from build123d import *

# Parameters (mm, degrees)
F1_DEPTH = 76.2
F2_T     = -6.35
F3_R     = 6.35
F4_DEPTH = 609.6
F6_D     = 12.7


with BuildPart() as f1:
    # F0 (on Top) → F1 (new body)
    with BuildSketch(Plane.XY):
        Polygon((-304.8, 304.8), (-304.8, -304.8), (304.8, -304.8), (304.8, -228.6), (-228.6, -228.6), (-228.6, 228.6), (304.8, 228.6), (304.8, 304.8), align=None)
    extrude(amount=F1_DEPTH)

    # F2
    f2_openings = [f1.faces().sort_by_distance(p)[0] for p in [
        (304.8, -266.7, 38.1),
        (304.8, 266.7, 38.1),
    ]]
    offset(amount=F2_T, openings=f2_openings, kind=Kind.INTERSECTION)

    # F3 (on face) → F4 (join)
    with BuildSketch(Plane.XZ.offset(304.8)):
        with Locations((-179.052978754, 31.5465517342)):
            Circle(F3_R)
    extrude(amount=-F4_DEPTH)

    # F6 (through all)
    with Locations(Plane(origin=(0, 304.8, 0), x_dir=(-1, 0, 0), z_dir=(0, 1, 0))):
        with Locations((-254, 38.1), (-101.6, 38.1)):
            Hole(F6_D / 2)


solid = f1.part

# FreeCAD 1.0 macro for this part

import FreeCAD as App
import Part
import Sketcher
Q = App.Units.Quantity


def faces_at(feature, points):
    """Names of the faces that lie closest to the given points."""
    faces = feature.Shape.Faces
    near = lambda p: min(range(len(faces)), key=lambda i: faces[i].distToShape(Part.Vertex(*p))[0])
    return sorted({f"Face{near(p) + 1}" for p in points})

doc = App.newDocument("Part")
body = doc.addObject("PartDesign::Body", "Body")

# Sketch on XY plane
sketch1 = doc.addObject("Sketcher::SketchObject", "Sketch")
body.addObject(sketch1)
sketch1.AttachmentSupport = (doc.XY_Plane, [""])
sketch1.MapMode = "FlatFace"
sketch1.addGeometry([
    Part.LineSegment(App.Vector(-305, 305, 0), App.Vector(-305, -305, 0)),  # 0
    Part.LineSegment(App.Vector(-305, -305, 0), App.Vector(305, -305, 0)),  # 1
    Part.LineSegment(App.Vector(305, -305, 0), App.Vector(305, -229, 0)),  # 2
    Part.LineSegment(App.Vector(305, -229, 0), App.Vector(-229, -229, 0)),  # 3
    Part.LineSegment(App.Vector(-229, -229, 0), App.Vector(-229, 229, 0)),  # 4
    Part.LineSegment(App.Vector(-229, 229, 0), App.Vector(305, 229, 0)),  # 5
    Part.LineSegment(App.Vector(305, 229, 0), App.Vector(305, 305, 0)),  # 6
    Part.LineSegment(App.Vector(305, 305, 0), App.Vector(-305, 305, 0)),  # 7
], False)
sketch1.addConstraint([
    Sketcher.Constraint("Coincident", 0, 2, 1, 1),
    Sketcher.Constraint("Coincident", 1, 2, 2, 1),
    Sketcher.Constraint("Coincident", 2, 2, 3, 1),
    Sketcher.Constraint("Coincident", 3, 2, 4, 1),
    Sketcher.Constraint("Coincident", 4, 2, 5, 1),
    Sketcher.Constraint("Coincident", 5, 2, 6, 1),
    Sketcher.Constraint("Coincident", 6, 2, 7, 1),
    Sketcher.Constraint("Coincident", 7, 2, 0, 1),
    Sketcher.Constraint("Vertical", 0),
    Sketcher.Constraint("Horizontal", 1),
    Sketcher.Constraint("Vertical", 2),
    Sketcher.Constraint("Horizontal", 3),
    Sketcher.Constraint("Vertical", 4),
    Sketcher.Constraint("Horizontal", 5),
    Sketcher.Constraint("Vertical", 6),
    Sketcher.Constraint("Horizontal", 7),
    Sketcher.Constraint("Symmetric", 0, 2, 6, 2, -1, 1),
    Sketcher.Constraint("Symmetric", 2, 2, 5, 2, -1),
    Sketcher.Constraint("Equal", 7, 0),
    Sketcher.Constraint("DistanceX", 1, 1, 1, 2, Q("24 in")),
    Sketcher.Constraint("DistanceX", 3, 2, 3, 1, Q("21 in")),
    Sketcher.Constraint("DistanceY", 2, 1, 2, 2, Q("3 in")),
])
pad1 = doc.addObject("PartDesign::Pad", "Pad")
body.addObject(pad1)
pad1.Profile = sketch1
pad1.Length = Q("3 in")
doc.recompute()

thickness = doc.addObject("PartDesign::Thickness", "Thickness")
body.addObject(thickness)
thickness.Base = (pad1, faces_at(pad1, [(304.8, -266.7, 38.1), (304.8, 266.7, 38.1)]))
thickness.Value = Q("0.25 in")
thickness.Reversed = True
thickness.Join = "Intersection"

# Sketch on XZ plane
sketch2 = doc.addObject("Sketcher::SketchObject", "Sketch001")
body.addObject(sketch2)
sketch2.AttachmentSupport = (doc.XZ_Plane, [""])
sketch2.MapMode = "FlatFace"
sketch2.AttachmentOffset = App.Placement(App.Vector(0, 0, 12 * 25.4), App.Rotation())
sketch2.addGeometry(Part.Circle(App.Vector(-179, 32, 0), App.Vector(0, 0, 1), 6), False)
sketch2.addConstraint([
    Sketcher.Constraint("Diameter", 0, Q("0.5 in")),
    Sketcher.Constraint("DistanceX", 0, 3, -1, 1, 179.052979),
    Sketcher.Constraint("DistanceY", -1, 1, 0, 3, 31.546552),
])
pad2 = doc.addObject("PartDesign::Pad", "Pad001")
body.addObject(pad2)
pad2.Profile = sketch2
pad2.Length = Q("24 in")
pad2.Reversed = True

# Sketch on XZ plane
sketch3 = doc.addObject("Sketcher::SketchObject", "Sketch002")
body.addObject(sketch3)
sketch3.AttachmentSupport = (doc.XZ_Plane, [""])
sketch3.MapMode = "FlatFace"
sketch3.AttachmentOffset = App.Placement(App.Vector(0, 0, -12 * 25.4), App.Rotation())
sketch3.addGeometry([
    Part.Circle(App.Vector(254, 38, 0), App.Vector(0, 0, 1), 6),
    Part.Circle(App.Vector(102, 38, 0), App.Vector(0, 0, 1), 6),
], False)
sketch3.addConstraint([
    Sketcher.Constraint("Equal", 0, 1),
    Sketcher.Constraint("Horizontal", 0, 3, 1, 3),
    Sketcher.Constraint("Diameter", 0, Q("0.5 in")),
    Sketcher.Constraint("DistanceX", -1, 1, 0, 3, Q("10 in")),
    Sketcher.Constraint("DistanceX", -1, 1, 1, 3, Q("4 in")),
    Sketcher.Constraint("DistanceY", -1, 1, 0, 3, Q("1.5 in")),
])
doc.recompute()
hole = doc.addObject("PartDesign::Hole", "Hole")
body.addObject(hole)
hole.Profile = sketch3
hole.ThreadType = "None"
hole.Diameter = Q("0.5 in")
hole.DepthType = "ThroughAll"
hole.Reversed = True

doc.recompute()
